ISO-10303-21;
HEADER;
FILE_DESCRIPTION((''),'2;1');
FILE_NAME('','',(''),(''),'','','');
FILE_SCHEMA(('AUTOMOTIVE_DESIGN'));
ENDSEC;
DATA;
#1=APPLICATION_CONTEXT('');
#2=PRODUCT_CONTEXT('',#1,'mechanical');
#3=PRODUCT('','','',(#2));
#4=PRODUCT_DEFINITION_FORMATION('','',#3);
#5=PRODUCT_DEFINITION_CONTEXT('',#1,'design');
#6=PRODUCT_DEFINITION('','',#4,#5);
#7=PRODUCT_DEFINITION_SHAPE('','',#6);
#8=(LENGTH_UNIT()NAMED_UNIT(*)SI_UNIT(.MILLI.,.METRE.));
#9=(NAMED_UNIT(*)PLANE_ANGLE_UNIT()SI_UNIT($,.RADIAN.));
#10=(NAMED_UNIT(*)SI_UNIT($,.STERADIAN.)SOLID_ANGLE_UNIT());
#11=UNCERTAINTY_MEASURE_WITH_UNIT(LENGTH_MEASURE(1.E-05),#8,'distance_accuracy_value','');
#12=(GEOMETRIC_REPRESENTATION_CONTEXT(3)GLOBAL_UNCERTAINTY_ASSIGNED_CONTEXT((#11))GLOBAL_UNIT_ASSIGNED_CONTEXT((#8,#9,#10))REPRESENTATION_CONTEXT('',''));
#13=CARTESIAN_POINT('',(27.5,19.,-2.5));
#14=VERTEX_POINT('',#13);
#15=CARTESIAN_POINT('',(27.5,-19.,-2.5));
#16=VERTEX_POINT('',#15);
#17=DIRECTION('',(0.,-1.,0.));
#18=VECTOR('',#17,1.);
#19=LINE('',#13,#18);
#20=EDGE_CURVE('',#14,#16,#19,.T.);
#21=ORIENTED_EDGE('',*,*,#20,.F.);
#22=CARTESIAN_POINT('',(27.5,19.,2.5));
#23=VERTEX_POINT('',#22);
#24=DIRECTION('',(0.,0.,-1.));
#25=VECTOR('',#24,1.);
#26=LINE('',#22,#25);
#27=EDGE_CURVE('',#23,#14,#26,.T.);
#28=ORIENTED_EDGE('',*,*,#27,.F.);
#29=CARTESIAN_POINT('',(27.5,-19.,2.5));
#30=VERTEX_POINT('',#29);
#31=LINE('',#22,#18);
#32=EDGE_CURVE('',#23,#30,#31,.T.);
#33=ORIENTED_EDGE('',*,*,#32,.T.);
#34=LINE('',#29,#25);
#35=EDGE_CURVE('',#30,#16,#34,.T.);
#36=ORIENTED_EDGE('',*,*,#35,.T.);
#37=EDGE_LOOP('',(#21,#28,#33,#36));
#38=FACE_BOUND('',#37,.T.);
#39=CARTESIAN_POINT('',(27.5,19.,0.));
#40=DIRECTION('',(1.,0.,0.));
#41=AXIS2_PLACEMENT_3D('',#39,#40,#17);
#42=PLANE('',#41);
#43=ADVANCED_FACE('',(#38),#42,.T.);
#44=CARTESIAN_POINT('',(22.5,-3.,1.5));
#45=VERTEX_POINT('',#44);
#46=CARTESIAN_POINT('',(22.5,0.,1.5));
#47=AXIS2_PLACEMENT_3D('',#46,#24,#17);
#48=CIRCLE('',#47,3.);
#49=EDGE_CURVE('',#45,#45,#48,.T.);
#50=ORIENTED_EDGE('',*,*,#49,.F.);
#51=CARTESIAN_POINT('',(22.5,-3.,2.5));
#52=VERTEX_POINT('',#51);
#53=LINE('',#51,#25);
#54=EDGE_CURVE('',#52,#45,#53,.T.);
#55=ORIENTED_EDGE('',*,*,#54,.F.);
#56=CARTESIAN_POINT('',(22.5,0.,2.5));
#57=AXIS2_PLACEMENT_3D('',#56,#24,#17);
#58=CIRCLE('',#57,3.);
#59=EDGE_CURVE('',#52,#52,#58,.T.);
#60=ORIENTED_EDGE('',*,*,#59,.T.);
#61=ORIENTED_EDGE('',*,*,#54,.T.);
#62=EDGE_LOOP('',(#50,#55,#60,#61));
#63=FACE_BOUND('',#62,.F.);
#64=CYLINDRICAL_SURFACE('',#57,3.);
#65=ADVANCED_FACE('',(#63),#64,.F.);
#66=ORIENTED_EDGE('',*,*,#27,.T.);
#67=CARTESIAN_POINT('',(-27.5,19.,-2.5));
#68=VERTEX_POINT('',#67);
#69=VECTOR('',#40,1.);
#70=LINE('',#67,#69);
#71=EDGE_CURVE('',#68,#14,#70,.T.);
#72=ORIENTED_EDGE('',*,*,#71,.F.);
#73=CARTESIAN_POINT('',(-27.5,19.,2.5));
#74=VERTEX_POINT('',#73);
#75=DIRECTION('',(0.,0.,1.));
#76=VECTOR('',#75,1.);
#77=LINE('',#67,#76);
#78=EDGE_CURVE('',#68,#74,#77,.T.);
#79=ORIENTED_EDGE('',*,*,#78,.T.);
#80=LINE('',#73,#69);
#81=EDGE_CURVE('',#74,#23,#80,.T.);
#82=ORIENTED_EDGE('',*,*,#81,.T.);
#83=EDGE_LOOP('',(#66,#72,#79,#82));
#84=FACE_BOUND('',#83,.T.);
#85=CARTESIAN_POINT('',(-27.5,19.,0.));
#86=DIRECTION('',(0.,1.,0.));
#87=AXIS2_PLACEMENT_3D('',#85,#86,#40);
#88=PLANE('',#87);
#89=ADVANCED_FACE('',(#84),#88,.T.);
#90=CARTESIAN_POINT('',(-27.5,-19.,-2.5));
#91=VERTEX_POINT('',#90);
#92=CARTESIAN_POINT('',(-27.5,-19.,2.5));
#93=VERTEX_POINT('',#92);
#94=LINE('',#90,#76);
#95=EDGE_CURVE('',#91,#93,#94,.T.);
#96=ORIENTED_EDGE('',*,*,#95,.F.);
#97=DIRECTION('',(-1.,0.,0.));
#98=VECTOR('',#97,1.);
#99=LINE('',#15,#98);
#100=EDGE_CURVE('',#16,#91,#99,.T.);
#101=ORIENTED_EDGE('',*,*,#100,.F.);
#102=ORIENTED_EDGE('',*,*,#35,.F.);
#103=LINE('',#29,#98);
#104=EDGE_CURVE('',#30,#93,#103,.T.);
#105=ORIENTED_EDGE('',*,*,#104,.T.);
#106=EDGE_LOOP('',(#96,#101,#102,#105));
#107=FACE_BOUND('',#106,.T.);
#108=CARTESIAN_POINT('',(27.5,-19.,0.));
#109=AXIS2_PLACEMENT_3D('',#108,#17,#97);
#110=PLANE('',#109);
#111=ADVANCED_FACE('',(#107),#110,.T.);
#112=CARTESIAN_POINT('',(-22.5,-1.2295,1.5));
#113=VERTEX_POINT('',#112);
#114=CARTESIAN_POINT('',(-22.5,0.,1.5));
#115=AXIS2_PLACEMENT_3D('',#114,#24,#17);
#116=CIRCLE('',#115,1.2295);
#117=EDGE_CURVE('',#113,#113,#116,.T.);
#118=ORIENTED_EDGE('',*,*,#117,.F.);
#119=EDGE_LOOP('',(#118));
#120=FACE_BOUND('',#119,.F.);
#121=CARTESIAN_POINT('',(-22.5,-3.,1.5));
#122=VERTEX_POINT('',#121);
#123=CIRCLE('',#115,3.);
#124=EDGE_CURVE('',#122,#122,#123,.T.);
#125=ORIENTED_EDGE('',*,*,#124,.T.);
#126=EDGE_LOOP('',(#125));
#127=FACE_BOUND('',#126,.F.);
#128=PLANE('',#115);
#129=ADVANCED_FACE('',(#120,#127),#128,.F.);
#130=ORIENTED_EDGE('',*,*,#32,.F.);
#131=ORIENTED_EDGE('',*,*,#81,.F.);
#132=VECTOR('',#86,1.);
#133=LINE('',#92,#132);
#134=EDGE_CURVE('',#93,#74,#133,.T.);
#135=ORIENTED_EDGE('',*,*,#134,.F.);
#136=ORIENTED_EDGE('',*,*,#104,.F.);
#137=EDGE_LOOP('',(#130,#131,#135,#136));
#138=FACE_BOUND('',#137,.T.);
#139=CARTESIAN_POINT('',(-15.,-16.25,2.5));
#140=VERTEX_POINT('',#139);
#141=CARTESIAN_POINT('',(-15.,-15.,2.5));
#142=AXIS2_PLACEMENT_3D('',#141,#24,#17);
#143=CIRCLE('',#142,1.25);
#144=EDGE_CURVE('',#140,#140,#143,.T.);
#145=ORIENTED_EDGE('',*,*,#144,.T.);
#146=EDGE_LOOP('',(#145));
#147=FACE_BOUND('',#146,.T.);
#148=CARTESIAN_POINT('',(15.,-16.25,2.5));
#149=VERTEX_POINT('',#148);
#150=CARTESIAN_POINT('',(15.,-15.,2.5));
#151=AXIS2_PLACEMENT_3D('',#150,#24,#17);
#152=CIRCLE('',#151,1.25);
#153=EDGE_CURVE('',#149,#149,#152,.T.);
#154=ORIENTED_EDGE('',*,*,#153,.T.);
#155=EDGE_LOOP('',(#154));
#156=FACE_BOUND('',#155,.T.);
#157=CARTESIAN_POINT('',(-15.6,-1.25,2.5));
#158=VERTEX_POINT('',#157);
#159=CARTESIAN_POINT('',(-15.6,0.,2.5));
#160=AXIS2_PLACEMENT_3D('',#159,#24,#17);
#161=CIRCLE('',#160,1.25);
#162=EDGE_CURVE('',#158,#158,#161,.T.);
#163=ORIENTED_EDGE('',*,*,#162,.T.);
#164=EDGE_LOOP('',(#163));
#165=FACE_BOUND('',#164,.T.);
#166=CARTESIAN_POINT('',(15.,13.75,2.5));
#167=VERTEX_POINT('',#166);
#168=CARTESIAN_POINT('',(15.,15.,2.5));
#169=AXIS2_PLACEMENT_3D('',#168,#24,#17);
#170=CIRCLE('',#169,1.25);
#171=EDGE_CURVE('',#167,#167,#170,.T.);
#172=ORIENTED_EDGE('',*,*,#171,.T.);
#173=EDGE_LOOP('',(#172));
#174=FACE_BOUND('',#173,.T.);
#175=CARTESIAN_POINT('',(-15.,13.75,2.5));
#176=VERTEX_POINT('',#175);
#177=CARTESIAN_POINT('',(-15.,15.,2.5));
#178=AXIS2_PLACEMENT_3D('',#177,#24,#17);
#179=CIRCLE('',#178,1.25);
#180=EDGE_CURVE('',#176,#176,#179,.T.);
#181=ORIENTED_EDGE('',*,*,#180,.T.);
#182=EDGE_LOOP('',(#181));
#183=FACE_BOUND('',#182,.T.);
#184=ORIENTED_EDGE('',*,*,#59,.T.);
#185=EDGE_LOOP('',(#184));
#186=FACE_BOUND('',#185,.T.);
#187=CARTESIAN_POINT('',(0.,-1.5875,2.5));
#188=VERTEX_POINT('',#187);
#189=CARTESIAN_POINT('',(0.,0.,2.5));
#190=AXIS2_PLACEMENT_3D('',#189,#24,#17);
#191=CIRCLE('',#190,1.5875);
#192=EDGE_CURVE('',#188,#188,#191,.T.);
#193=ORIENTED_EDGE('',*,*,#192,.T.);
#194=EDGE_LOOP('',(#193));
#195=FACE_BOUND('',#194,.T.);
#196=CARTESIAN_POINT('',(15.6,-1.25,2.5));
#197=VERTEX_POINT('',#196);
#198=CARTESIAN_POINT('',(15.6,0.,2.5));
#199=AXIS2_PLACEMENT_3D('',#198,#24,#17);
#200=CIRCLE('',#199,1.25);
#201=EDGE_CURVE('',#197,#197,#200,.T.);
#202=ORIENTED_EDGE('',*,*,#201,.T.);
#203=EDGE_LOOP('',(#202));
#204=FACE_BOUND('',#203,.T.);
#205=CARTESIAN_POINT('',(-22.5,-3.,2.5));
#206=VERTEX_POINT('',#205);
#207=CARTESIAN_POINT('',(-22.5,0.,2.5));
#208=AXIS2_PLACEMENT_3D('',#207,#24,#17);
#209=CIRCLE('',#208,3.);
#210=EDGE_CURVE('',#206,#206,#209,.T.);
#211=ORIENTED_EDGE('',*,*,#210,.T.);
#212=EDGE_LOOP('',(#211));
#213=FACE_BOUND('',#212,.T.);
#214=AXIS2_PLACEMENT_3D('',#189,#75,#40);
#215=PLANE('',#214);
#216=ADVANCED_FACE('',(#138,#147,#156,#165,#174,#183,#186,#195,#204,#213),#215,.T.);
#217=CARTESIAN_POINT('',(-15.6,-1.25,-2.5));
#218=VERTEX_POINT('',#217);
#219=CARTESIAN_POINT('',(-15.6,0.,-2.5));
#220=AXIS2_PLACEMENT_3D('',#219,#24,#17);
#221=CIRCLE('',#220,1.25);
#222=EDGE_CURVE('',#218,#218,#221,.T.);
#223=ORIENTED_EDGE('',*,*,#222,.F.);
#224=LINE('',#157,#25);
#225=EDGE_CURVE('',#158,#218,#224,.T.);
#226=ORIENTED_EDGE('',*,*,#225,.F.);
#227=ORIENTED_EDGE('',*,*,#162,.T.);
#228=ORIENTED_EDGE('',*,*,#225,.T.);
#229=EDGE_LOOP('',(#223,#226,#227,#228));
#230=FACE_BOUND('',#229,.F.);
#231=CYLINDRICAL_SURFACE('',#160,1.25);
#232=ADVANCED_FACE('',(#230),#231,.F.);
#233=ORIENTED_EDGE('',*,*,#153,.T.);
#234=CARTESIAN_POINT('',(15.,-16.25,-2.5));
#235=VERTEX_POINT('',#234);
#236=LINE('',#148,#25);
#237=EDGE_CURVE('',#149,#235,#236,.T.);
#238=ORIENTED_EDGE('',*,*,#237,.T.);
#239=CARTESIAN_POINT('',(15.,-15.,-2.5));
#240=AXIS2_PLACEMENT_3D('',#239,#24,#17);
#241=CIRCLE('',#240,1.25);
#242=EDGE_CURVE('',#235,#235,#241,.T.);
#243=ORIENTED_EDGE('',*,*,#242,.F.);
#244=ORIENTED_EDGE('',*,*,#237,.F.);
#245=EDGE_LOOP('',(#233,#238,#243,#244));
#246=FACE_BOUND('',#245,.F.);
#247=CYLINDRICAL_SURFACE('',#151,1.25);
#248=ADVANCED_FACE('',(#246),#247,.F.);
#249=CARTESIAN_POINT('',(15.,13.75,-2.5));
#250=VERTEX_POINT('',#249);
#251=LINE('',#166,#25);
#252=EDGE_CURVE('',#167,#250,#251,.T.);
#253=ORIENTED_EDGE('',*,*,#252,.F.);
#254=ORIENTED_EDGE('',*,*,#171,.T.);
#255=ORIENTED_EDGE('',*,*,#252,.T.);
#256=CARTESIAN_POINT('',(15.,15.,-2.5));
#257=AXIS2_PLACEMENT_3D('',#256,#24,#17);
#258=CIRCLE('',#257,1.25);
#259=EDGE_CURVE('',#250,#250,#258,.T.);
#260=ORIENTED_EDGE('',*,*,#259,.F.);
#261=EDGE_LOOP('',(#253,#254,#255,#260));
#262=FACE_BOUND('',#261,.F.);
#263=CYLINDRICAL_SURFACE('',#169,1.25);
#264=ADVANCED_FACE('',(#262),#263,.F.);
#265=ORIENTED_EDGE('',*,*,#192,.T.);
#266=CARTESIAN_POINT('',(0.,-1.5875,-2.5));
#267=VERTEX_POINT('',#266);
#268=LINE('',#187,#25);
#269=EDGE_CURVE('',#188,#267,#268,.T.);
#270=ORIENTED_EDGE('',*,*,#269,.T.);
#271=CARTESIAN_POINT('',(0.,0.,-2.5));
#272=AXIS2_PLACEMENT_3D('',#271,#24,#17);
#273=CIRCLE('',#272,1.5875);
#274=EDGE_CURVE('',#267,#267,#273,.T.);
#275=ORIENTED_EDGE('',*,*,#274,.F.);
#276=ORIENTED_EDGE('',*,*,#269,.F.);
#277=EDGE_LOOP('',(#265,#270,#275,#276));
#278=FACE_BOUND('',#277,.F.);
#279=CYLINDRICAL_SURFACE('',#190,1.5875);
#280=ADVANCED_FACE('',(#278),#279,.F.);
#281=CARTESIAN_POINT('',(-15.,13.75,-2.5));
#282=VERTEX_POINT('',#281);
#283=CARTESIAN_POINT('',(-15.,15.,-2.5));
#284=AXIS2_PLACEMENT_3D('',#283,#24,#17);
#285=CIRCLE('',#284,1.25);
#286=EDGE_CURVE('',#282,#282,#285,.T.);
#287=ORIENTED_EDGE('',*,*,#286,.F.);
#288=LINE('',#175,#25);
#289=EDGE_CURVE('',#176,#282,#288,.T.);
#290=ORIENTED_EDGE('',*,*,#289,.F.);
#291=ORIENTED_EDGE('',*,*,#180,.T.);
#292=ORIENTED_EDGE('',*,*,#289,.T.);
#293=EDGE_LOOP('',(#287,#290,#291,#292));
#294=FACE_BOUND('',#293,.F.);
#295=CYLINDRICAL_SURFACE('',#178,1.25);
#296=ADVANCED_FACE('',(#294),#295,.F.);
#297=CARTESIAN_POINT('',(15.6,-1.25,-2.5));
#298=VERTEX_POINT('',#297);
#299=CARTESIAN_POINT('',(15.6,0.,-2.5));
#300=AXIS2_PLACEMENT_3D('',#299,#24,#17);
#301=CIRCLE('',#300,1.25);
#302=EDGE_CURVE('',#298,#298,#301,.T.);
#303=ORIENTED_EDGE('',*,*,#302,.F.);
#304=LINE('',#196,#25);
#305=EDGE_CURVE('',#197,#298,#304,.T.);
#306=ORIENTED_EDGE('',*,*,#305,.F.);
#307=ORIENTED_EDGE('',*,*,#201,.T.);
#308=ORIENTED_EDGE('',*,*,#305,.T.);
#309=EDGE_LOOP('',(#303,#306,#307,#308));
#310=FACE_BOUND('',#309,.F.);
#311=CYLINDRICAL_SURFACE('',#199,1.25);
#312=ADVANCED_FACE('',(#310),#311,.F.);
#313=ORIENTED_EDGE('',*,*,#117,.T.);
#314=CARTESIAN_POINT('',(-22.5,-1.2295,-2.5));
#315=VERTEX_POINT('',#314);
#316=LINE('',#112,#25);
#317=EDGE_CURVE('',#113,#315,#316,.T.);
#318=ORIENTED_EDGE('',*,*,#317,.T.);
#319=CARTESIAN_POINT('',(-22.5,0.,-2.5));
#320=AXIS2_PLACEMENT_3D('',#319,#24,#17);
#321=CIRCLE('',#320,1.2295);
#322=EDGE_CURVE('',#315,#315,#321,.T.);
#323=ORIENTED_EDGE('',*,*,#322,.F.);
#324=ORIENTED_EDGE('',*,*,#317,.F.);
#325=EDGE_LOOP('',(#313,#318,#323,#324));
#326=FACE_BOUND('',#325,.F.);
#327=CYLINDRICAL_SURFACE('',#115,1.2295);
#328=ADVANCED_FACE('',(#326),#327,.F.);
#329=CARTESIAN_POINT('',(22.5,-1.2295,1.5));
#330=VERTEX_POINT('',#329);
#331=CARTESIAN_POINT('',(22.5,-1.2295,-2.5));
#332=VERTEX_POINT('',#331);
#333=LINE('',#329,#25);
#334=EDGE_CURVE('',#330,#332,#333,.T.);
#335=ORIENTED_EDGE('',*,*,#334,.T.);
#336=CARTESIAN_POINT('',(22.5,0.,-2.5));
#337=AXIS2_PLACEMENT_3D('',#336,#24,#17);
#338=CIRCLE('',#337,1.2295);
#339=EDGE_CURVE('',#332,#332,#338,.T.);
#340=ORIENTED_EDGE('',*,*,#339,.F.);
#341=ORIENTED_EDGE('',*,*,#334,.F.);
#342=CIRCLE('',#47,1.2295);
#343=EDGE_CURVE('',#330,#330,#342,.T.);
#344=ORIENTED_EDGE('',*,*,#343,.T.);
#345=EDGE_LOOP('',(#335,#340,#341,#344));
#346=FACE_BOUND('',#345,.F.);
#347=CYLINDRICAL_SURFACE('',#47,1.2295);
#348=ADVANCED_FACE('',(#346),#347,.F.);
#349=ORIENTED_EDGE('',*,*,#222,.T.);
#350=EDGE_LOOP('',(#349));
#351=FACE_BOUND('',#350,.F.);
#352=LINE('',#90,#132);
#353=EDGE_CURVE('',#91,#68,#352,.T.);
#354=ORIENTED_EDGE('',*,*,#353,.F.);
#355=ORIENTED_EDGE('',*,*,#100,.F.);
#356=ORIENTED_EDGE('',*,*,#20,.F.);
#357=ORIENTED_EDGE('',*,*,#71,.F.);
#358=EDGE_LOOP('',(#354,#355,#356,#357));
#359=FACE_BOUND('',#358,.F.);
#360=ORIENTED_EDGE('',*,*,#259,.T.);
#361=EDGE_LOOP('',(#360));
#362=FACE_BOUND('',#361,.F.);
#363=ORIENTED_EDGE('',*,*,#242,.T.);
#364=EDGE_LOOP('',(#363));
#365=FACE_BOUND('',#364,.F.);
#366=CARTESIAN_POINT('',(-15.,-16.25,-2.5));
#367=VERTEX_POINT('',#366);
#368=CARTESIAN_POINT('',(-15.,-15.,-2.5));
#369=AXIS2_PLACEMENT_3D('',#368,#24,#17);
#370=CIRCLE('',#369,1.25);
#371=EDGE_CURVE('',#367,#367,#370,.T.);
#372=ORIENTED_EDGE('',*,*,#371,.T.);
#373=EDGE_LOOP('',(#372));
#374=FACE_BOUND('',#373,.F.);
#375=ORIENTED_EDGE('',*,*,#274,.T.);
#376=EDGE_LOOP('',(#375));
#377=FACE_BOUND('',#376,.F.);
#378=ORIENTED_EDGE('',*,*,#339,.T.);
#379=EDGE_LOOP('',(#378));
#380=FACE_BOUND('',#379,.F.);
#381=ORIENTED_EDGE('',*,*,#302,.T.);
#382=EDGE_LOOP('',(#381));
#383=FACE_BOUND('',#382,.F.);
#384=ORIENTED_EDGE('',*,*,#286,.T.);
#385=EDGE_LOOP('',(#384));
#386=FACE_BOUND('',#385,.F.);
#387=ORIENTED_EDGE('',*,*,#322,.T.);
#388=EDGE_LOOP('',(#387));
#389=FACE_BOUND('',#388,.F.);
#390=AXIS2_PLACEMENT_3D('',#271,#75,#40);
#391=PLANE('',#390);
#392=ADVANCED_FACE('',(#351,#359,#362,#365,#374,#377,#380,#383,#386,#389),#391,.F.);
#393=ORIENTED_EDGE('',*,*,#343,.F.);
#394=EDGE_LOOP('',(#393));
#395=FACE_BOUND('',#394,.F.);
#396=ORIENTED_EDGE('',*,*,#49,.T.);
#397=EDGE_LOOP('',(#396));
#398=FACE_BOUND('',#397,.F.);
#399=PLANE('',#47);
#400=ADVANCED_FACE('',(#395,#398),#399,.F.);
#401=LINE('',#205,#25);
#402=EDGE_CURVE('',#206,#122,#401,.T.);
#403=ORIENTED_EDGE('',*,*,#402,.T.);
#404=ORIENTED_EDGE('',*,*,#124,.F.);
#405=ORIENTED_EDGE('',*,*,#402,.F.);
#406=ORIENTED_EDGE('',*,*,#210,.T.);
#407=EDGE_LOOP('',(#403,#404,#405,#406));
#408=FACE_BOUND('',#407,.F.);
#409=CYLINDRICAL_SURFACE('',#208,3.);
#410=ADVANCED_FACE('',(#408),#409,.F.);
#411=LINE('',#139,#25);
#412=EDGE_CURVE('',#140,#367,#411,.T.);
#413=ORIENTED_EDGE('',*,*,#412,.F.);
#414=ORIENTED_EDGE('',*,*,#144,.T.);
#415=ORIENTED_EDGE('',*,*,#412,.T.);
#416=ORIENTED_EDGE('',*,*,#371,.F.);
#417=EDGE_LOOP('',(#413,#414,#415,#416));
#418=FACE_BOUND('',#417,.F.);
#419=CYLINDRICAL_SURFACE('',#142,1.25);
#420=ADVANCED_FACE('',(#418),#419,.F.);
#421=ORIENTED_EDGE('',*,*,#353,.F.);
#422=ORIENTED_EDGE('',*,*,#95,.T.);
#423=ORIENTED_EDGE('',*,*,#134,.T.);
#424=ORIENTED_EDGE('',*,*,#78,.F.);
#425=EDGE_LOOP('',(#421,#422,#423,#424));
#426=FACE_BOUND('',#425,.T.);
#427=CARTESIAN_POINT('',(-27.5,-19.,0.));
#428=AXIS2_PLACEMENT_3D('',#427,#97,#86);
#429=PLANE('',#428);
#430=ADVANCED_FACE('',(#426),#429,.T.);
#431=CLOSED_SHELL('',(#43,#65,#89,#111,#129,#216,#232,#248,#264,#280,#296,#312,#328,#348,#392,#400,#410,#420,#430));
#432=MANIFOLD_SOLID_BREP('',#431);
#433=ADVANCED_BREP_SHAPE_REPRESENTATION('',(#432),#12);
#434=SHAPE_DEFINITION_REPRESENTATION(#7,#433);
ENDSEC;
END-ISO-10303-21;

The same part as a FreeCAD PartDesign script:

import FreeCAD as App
import Part
import Sketcher


def add_polygon(sketch, points):
    """Adds a closed chain of lines whose ends are joined by coincident constraints."""
    first, n = sketch.GeometryCount, len(points)
    for a, b in zip(points, points[1:] + points[:1]):
        sketch.addGeometry(Part.LineSegment(App.Vector(*a, 0), App.Vector(*b, 0)), False)
    for i in range(n):
        sketch.addConstraint(Sketcher.Constraint("Coincident", first + i, 2, first + (i + 1) % n, 1))

doc = App.newDocument("Part")
body = doc.addObject("PartDesign::Body", "Body")

sketch1 = body.newObject("Sketcher::SketchObject", "Sketch")
sketch1.AttachmentSupport = (doc.getObject("XY_Plane"), [""])
sketch1.MapMode = "FlatFace"
add_polygon(sketch1, [(27.5, 19), (-27.5, 19), (-27.5, -19), (27.5, -19)])
sketch1.addConstraint([
    Sketcher.Constraint("Horizontal", 0),
    Sketcher.Constraint("Vertical", 1),
    Sketcher.Constraint("Horizontal", 2),
    Sketcher.Constraint("Vertical", 3),
    Sketcher.Constraint("Symmetric", 0, 2, 2, 2, -1, 1),
    Sketcher.Constraint("DistanceX", 0, 2, 0, 1, 55.0),
    Sketcher.Constraint("DistanceY", 1, 2, 1, 1, 38.0),
])
pad1 = body.newObject("PartDesign::Pad", "Pad")
pad1.Profile = sketch1
pad1.Length = 5
pad1.Midplane = True

sketch2 = body.newObject("Sketcher::SketchObject", "Sketch001")
sketch2.AttachmentSupport = (doc.getObject("XY_Plane"), [""])
sketch2.MapMode = "FlatFace"
sketch2.AttachmentOffset = App.Placement(App.Vector(0, 0, 2.5), App.Rotation())
sketch2.addGeometry([
    Part.Circle(App.Vector(-15.6, 0, 0), App.Vector(0, 0, 1), 1.25),
    Part.Circle(App.Vector(-15, 15, 0), App.Vector(0, 0, 1), 1.25),
    Part.Circle(App.Vector(15, 15, 0), App.Vector(0, 0, 1), 1.25),
    Part.Circle(App.Vector(15.6, 0, 0), App.Vector(0, 0, 1), 1.25),
    Part.Circle(App.Vector(15, -15, 0), App.Vector(0, 0, 1), 1.25),
    Part.Circle(App.Vector(-15, -15, 0), App.Vector(0, 0, 1), 1.25),
], False)
sketch2.addConstraint([
    Sketcher.Constraint("Equal", 0, 1),
    Sketcher.Constraint("Equal", 1, 2),
    Sketcher.Constraint("Equal", 2, 3),
    Sketcher.Constraint("Equal", 3, 4),
    Sketcher.Constraint("Equal", 4, 5),
    Sketcher.Constraint("Symmetric", 0, 3, 3, 3, -1, 1),
    Sketcher.Constraint("Symmetric", 1, 3, 4, 3, -1, 1),
    Sketcher.Constraint("Symmetric", 2, 3, 5, 3, -1, 1),
    Sketcher.Constraint("Symmetric", 1, 3, 2, 3, -2),
    Sketcher.Constraint("PointOnObject", 0, 3, -1),
    Sketcher.Constraint("Diameter", 0, 2.5),
    Sketcher.Constraint("DistanceX", 1, 3, -1, 1, 15.0),
    Sketcher.Constraint("DistanceY", -1, 1, 1, 3, 15.0),
    Sketcher.Constraint("DistanceX", 0, 3, -1, 1, 15.6),
])
doc.recompute()
hole = body.newObject("PartDesign::Hole", "Hole")
hole.Profile = sketch2
hole.ThreadType = "None"
hole.Diameter = 2.5
hole.DepthType = "ThroughAll"

sketch3 = body.newObject("Sketcher::SketchObject", "Sketch002")
sketch3.AttachmentSupport = (doc.getObject("XY_Plane"), [""])
sketch3.MapMode = "FlatFace"
sketch3.AttachmentOffset = App.Placement(App.Vector(0, 0, 2.5), App.Rotation())
sketch3.addGeometry(Part.Circle(App.Vector(0, 0, 0), App.Vector(0, 0, 1), 1.5875), False)
sketch3.addConstraint([
    Sketcher.Constraint("Coincident", 0, 3, -1, 1),
    Sketcher.Constraint("Diameter", 0, 3.175),
])
doc.recompute()
hole2 = body.newObject("PartDesign::Hole", "Hole001")
hole2.Profile = sketch3
hole2.ThreadType = "None"
hole2.Diameter = 3.175
hole2.DepthType = "ThroughAll"

sketch4 = body.newObject("Sketcher::SketchObject", "Sketch003")
sketch4.AttachmentSupport = (doc.getObject("XY_Plane"), [""])
sketch4.MapMode = "FlatFace"
sketch4.AttachmentOffset = App.Placement(App.Vector(0, 0, 2.5), App.Rotation())
sketch4.addGeometry([
    Part.Circle(App.Vector(-22.5, 0, 0), App.Vector(0, 0, 1), 1.2295),
    Part.Circle(App.Vector(22.5, 0, 0), App.Vector(0, 0, 1), 1.2295),
], False)
sketch4.addConstraint([
    Sketcher.Constraint("Equal", 0, 1),
    Sketcher.Constraint("Symmetric", 0, 3, 1, 3, -1, 1),
    Sketcher.Constraint("PointOnObject", 0, 3, -1),
    Sketcher.Constraint("Diameter", 0, 2.459),
    Sketcher.Constraint("DistanceX", 0, 3, 1, 3, 45.0),
])
doc.recompute()
hole3 = body.newObject("PartDesign::Hole", "Hole002")
hole3.Profile = sketch4
hole3.ThreadType = "None"
hole3.Diameter = 2.459
hole3.DepthType = "ThroughAll"
hole3.HoleCutType = "Counterbore"
hole3.HoleCutDiameter = 6
hole3.HoleCutDepth = 1

doc.recompute()
